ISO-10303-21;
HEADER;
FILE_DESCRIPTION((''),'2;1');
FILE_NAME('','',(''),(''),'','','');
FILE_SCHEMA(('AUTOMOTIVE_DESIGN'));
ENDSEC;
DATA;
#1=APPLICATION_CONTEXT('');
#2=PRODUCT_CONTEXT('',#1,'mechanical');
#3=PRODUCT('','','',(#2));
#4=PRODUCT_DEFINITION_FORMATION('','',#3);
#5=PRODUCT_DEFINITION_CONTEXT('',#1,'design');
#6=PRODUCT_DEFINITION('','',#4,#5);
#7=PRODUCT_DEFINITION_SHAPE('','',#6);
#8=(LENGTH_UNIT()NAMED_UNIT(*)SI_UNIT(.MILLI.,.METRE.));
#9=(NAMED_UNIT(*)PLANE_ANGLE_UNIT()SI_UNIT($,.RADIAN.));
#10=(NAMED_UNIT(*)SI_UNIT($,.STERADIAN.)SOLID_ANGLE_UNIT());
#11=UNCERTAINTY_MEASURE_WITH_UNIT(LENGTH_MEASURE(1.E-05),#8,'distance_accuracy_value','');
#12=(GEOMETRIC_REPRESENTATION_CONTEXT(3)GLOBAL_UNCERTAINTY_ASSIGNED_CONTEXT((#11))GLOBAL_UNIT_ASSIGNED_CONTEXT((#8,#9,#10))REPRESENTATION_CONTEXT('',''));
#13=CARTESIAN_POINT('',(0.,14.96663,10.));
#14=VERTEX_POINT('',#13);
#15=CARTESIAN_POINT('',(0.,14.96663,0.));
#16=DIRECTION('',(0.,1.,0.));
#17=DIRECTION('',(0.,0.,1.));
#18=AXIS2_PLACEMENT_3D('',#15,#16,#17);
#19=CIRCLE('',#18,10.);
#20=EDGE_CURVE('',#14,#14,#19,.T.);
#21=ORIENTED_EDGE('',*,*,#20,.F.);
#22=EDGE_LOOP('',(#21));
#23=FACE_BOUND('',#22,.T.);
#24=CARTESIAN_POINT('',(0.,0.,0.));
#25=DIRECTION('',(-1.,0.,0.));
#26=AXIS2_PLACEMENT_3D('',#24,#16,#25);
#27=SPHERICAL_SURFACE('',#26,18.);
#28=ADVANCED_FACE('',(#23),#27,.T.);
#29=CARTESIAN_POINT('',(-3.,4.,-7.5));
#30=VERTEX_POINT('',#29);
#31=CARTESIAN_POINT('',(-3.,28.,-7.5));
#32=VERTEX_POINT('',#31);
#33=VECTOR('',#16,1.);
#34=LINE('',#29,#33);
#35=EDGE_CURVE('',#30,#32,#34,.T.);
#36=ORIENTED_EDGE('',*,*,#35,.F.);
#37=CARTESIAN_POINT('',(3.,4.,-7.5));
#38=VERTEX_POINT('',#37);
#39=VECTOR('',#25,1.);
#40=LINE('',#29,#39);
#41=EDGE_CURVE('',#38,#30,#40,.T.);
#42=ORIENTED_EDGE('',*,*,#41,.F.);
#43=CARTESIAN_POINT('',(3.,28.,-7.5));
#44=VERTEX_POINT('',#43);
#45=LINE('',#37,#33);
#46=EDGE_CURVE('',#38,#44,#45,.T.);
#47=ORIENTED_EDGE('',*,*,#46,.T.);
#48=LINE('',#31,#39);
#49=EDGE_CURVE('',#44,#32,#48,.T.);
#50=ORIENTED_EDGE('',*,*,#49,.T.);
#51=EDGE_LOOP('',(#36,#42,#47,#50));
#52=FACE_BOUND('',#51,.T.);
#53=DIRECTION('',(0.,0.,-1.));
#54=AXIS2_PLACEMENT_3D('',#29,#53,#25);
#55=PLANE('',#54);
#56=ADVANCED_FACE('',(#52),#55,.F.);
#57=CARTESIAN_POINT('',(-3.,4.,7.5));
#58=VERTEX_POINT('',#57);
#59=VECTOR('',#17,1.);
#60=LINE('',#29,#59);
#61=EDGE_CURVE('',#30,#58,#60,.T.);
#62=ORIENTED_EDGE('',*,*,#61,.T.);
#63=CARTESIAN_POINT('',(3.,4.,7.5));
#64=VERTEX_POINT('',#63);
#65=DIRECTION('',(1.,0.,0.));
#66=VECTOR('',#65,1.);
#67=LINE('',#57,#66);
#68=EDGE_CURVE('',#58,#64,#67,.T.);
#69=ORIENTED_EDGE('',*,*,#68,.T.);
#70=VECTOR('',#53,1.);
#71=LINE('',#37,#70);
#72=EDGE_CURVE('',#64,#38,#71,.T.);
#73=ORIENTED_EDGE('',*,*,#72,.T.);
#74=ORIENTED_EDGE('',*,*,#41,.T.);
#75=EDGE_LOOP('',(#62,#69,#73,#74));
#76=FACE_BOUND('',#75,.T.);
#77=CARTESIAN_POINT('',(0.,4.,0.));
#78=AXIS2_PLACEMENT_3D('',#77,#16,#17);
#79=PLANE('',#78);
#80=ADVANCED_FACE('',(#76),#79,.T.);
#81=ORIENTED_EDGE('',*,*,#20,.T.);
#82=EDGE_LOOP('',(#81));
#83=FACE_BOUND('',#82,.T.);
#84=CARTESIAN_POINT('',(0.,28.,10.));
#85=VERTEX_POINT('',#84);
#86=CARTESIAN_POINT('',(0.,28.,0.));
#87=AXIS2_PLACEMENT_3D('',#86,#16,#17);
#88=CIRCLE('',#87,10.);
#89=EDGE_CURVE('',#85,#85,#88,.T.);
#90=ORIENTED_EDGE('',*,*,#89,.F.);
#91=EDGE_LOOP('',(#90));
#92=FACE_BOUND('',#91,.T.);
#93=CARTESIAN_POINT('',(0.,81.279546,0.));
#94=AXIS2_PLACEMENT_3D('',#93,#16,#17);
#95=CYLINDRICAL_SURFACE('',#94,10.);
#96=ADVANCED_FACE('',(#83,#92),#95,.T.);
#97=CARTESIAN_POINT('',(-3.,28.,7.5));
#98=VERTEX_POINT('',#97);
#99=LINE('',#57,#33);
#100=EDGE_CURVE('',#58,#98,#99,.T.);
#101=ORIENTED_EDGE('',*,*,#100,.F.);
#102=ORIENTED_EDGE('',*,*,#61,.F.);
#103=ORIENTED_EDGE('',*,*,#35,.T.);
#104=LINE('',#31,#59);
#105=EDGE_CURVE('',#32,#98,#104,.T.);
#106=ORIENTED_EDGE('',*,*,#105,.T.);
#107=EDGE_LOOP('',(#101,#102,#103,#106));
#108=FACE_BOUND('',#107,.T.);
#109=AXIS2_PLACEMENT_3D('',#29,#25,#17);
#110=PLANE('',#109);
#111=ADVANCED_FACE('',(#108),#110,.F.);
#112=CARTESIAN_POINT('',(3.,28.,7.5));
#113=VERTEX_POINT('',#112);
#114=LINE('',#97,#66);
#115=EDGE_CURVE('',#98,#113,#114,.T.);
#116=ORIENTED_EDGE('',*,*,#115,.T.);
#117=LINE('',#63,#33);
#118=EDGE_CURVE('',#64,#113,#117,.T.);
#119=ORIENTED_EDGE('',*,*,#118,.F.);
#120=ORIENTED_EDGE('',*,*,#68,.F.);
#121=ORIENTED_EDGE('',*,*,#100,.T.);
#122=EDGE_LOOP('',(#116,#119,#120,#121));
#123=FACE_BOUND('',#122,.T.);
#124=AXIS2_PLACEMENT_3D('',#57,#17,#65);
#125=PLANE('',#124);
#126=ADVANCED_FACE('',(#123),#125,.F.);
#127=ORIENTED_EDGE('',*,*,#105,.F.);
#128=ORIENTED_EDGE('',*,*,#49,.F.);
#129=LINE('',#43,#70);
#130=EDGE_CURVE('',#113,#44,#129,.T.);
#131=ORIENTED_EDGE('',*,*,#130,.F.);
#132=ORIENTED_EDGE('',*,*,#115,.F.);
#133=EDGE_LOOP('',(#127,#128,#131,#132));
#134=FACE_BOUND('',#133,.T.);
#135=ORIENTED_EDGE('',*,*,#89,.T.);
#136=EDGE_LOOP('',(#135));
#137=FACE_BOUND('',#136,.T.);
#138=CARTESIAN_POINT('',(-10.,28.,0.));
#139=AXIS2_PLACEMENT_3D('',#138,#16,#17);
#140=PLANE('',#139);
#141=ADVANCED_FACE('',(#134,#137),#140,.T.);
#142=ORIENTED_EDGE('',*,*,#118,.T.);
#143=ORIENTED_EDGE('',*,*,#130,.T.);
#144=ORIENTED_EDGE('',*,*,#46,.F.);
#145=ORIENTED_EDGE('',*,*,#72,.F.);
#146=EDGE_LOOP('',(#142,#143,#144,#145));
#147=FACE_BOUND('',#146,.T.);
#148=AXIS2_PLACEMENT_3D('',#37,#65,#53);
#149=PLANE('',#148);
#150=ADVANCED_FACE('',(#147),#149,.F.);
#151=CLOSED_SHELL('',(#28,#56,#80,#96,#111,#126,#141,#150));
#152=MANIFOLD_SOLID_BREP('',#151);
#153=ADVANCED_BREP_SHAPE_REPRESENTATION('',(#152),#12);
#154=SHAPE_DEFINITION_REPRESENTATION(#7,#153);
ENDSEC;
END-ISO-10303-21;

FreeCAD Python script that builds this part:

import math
import FreeCAD as App
import Part
import Sketcher
from FreeCAD import Vector
Q = App.Units.Quantity

doc = App.newDocument("Part")
body = doc.addObject("PartDesign::Body", "Body")

sketch1 = doc.addObject("Sketcher::SketchObject", "Sketch")
body.addObject(sketch1)
sketch1.AttachmentSupport = (doc.XY_Plane, [""])
sketch1.MapMode = "FlatFace"
sketch1.addGeometry([
    Part.LineSegment(Vector(-10, 28, 0), Vector(-10, 15, 0)),
    Part.ArcOfCircle(Part.Circle(Vector(0, 0, 0), Vector(0, 0, 1), 18), math.radians(124), math.radians(270)),
    Part.LineSegment(Vector(0, -18, 0), Vector(0, 28, 0)),
    Part.LineSegment(Vector(0, 28, 0), Vector(-10, 28, 0)),
], False)
sketch1.addConstraint([
    Sketcher.Constraint("Coincident", 0, 2, 1, 1),
    Sketcher.Constraint("Coincident", 1, 2, 2, 1),
    Sketcher.Constraint("Coincident", 2, 2, 3, 1),
    Sketcher.Constraint("Coincident", 3, 2, 0, 1),
    Sketcher.Constraint("Vertical", 0),
    Sketcher.Constraint("Vertical", 2),
    Sketcher.Constraint("Horizontal", 3),
    Sketcher.Constraint("Coincident", 1, 3, -1, 1),
    Sketcher.Constraint("PointOnObject", 1, 2, -2),
    Sketcher.Constraint("Radius", 1, Q("18 mm")),
    Sketcher.Constraint("DistanceX", 3, 2, 3, 1, Q("10 mm")),
    Sketcher.Constraint("DistanceY", 2, 1, 2, 2, Q("46 mm")),
])
revolution = doc.addObject("PartDesign::Revolution", "Revolution")
body.addObject(revolution)
revolution.Profile = sketch1
revolution.ReferenceAxis = (sketch1, ["V_Axis"])
revolution.Angle = 360

sketch2 = doc.addObject("Sketcher::SketchObject", "Sketch001")
body.addObject(sketch2)
sketch2.AttachmentSupport = (doc.XZ_Plane, [""])
sketch2.MapMode = "FlatFace"
sketch2.AttachmentOffset = App.Placement(Vector(0, 0, -28), App.Rotation())
sketch2.addGeometry([
    Part.LineSegment(Vector(-3, -8, 0), Vector(-3, 8, 0)),
    Part.LineSegment(Vector(-3, 8, 0), Vector(3, 8, 0)),
    Part.LineSegment(Vector(3, 8, 0), Vector(3, -8, 0)),
    Part.LineSegment(Vector(3, -8, 0), Vector(-3, -8, 0)),
], False)
sketch2.addConstraint([
    Sketcher.Constraint("Coincident", 0, 2, 1, 1),
    Sketcher.Constraint("Coincident", 1, 2, 2, 1),
    Sketcher.Constraint("Coincident", 2, 2, 3, 1),
    Sketcher.Constraint("Coincident", 3, 2, 0, 1),
    Sketcher.Constraint("Vertical", 0),
    Sketcher.Constraint("Horizontal", 1),
    Sketcher.Constraint("Vertical", 2),
    Sketcher.Constraint("Horizontal", 3),
    Sketcher.Constraint("Symmetric", 0, 2, 2, 2, -1, 1),
    Sketcher.Constraint("DistanceX", 1, 1, 1, 2, Q("6 mm")),
    Sketcher.Constraint("DistanceY", 0, 1, 0, 2, Q("15 mm")),
])
pocket1 = doc.addObject("PartDesign::Pocket", "Pocket")
body.addObject(pocket1)
pocket1.Profile = sketch2
pocket1.Length = 24
pocket1.Reversed = True

doc.recompute()
